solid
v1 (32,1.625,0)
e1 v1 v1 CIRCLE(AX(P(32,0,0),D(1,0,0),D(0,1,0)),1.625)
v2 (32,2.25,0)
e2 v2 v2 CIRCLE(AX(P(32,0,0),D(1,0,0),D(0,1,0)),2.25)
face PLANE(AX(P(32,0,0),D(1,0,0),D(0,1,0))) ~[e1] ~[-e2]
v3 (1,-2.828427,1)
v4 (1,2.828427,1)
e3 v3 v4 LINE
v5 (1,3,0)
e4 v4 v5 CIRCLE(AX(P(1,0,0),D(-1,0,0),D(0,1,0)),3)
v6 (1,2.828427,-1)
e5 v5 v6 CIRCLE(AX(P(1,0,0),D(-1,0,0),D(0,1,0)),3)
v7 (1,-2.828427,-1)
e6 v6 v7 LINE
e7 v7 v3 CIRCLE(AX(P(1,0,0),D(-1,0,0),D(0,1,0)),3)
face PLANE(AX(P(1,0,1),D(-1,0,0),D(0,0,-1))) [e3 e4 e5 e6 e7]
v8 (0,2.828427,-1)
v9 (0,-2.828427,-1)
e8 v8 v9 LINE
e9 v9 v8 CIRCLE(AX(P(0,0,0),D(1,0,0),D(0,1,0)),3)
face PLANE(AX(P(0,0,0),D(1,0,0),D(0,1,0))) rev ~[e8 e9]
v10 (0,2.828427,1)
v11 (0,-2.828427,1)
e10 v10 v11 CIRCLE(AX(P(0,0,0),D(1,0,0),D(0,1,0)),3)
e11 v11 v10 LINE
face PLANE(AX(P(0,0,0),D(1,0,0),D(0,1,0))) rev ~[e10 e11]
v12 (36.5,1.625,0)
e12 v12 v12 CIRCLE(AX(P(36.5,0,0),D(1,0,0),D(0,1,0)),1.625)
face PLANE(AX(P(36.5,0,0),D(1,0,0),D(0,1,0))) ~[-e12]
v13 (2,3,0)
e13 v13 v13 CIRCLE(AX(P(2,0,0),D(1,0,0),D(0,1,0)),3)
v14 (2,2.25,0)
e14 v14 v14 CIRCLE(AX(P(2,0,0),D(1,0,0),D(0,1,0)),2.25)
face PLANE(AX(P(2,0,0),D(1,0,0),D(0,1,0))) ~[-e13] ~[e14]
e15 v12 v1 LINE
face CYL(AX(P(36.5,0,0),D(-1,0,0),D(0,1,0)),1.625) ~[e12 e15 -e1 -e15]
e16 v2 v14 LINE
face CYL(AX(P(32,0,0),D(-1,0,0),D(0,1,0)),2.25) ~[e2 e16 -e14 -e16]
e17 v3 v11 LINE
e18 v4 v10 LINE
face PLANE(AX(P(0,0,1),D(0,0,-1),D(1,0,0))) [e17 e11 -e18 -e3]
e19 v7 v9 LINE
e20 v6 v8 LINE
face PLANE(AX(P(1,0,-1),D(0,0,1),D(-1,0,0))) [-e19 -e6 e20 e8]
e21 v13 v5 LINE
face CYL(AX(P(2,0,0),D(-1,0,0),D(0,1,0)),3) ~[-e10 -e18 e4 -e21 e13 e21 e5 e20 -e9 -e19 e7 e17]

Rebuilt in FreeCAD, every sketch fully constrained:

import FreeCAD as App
import Part
import Sketcher

doc = App.newDocument("Part")
params = doc.addObject("Spreadsheet::Sheet", "Params")
for row, (alias, value) in enumerate([
    ("sketch1_width", "2 mm"),
    ("sketch1_width2", "36.5 mm"),
    ("sketch1_width3", "4.5 mm"),
    ("sketch1_height", "3 mm"),
    ("sketch1_height2", "0.75 mm"),
    ("revolution_angle", "360 deg"),
    ("sketch2_width", "1 mm"),
    ("sketch2_height", "2 mm"),
    ("pocket1_length", "10 mm"),
], start=1):
    params.set(f"A{row}", alias)
    params.set(f"B{row}", "=" + value)
    params.setAlias(f"B{row}", alias)

body = doc.addObject("PartDesign::Body", "Body")

sketch1 = body.newObject("Sketcher::SketchObject", "Sketch")
sketch1.AttachmentSupport = (doc.getObject("XY_Plane"), [""])
sketch1.MapMode = "FlatFace"
sketch1.addGeometry(Part.LineSegment(App.Vector(0, 3, 0), App.Vector(0, 0, 0)), False)
sketch1.addGeometry(Part.LineSegment(App.Vector(0, 0, 0), App.Vector(36.5, 0, 0)), False)
sketch1.addGeometry(Part.LineSegment(App.Vector(36.5, 0, 0), App.Vector(36.5, 1.6, 0)), False)
sketch1.addGeometry(Part.LineSegment(App.Vector(36.5, 1.6, 0), App.Vector(32, 1.6, 0)), False)
sketch1.addGeometry(Part.LineSegment(App.Vector(32, 1.6, 0), App.Vector(32, 2.2, 0)), False)
sketch1.addGeometry(Part.LineSegment(App.Vector(32, 2.2, 0), App.Vector(2, 2.2, 0)), False)
sketch1.addGeometry(Part.LineSegment(App.Vector(2, 2.2, 0), App.Vector(2, 3, 0)), False)
sketch1.addGeometry(Part.LineSegment(App.Vector(2, 3, 0), App.Vector(0, 3, 0)), False)
sketch1.addConstraint(Sketcher.Constraint("Coincident", 0, 2, 1, 1))
sketch1.addConstraint(Sketcher.Constraint("Coincident", 1, 2, 2, 1))
sketch1.addConstraint(Sketcher.Constraint("Coincident", 2, 2, 3, 1))
sketch1.addConstraint(Sketcher.Constraint("Coincident", 3, 2, 4, 1))
sketch1.addConstraint(Sketcher.Constraint("Coincident", 4, 2, 5, 1))
sketch1.addConstraint(Sketcher.Constraint("Coincident", 5, 2, 6, 1))
sketch1.addConstraint(Sketcher.Constraint("Coincident", 6, 2, 7, 1))
sketch1.addConstraint(Sketcher.Constraint("Coincident", 7, 2, 0, 1))
sketch1.addConstraint(Sketcher.Constraint("Vertical", 0))
sketch1.addConstraint(Sketcher.Constraint("Horizontal", 1))
sketch1.addConstraint(Sketcher.Constraint("Vertical", 2))
sketch1.addConstraint(Sketcher.Constraint("Horizontal", 3))
sketch1.addConstraint(Sketcher.Constraint("Vertical", 4))
sketch1.addConstraint(Sketcher.Constraint("Horizontal", 5))
sketch1.addConstraint(Sketcher.Constraint("Vertical", 6))
sketch1.addConstraint(Sketcher.Constraint("Horizontal", 7))
sketch1.addConstraint(Sketcher.Constraint("Coincident", 0, 2, -1, 1))
sketch1.addConstraint(Sketcher.Constraint("DistanceX", 7, 2, 7, 1, 2.0))
sketch1.addConstraint(Sketcher.Constraint("DistanceX", 1, 1, 1, 2, 36.5))
sketch1.addConstraint(Sketcher.Constraint("DistanceX", 3, 2, 3, 1, 4.5))
sketch1.addConstraint(Sketcher.Constraint("DistanceY", 0, 2, 0, 1, 3.0))
sketch1.addConstraint(Sketcher.Constraint("DistanceY", 6, 1, 6, 2, 0.75))
sketch1.addConstraint(Sketcher.Constraint("DistanceY", 2, 1, 2, 2, 1.625))
sketch1.setExpression("Constraints[17]", "Params.sketch1_width")
sketch1.setExpression("Constraints[18]", "Params.sketch1_width2")
sketch1.setExpression("Constraints[19]", "Params.sketch1_width3")
sketch1.setExpression("Constraints[20]", "Params.sketch1_height")
sketch1.setExpression("Constraints[21]", "Params.sketch1_height2")
revolution = body.newObject("PartDesign::Revolution", "Revolution")
revolution.Profile = sketch1
revolution.ReferenceAxis = (sketch1, ["H_Axis"])
revolution.setExpression("Angle", "Params.revolution_angle")

sketch2 = body.newObject("Sketcher::SketchObject", "Sketch001")
sketch2.AttachmentSupport = (doc.getObject("XZ_Plane"), [""])
sketch2.MapMode = "FlatFace"
sketch2.addGeometry(Part.LineSegment(App.Vector(0, -1, 0), App.Vector(0, 1, 0)), False)
sketch2.addGeometry(Part.LineSegment(App.Vector(0, 1, 0), App.Vector(1, 1, 0)), False)
sketch2.addGeometry(Part.LineSegment(App.Vector(1, 1, 0), App.Vector(1, -1, 0)), False)
sketch2.addGeometry(Part.LineSegment(App.Vector(1, -1, 0), App.Vector(0, -1, 0)), False)
sketch2.addConstraint(Sketcher.Constraint("Coincident", 0, 2, 1, 1))
sketch2.addConstraint(Sketcher.Constraint("Coincident", 1, 2, 2, 1))
sketch2.addConstraint(Sketcher.Constraint("Coincident", 2, 2, 3, 1))
sketch2.addConstraint(Sketcher.Constraint("Coincident", 3, 2, 0, 1))
sketch2.addConstraint(Sketcher.Constraint("Vertical", 0))
sketch2.addConstraint(Sketcher.Constraint("Horizontal", 1))
sketch2.addConstraint(Sketcher.Constraint("Vertical", 2))
sketch2.addConstraint(Sketcher.Constraint("Horizontal", 3))
sketch2.addConstraint(Sketcher.Constraint("Symmetric", 0, 2, 3, 2, -1, 1))
sketch2.addConstraint(Sketcher.Constraint("DistanceX", 1, 1, 1, 2, 1.0))
sketch2.addConstraint(Sketcher.Constraint("DistanceY", 0, 1, 0, 2, 2.0))
sketch2.setExpression("Constraints[9]", "Params.sketch2_width")
sketch2.setExpression("Constraints[10]", "Params.sketch2_height")
pocket1 = body.newObject("PartDesign::Pocket", "Pocket")
pocket1.Profile = sketch2
pocket1.setExpression("Length", "Params.pocket1_length")
pocket1.Midplane = True

doc.recompute()
